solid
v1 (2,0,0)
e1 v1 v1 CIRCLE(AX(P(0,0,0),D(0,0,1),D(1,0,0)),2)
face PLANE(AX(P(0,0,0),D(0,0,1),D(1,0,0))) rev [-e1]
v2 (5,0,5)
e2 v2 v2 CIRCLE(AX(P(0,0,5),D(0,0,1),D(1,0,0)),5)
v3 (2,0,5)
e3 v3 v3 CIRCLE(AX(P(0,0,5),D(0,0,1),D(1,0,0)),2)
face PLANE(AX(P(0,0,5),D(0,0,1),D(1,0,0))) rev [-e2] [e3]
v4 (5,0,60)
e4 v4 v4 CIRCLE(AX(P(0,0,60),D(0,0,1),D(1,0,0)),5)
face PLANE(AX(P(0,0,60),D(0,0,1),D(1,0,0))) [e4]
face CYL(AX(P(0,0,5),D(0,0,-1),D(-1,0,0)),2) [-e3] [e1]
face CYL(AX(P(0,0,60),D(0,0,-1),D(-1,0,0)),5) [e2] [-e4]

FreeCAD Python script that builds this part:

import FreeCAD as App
import Part
import Sketcher

V = App.Vector

doc = App.newDocument("Part")
body = doc.addObject("PartDesign::Body", "Body")

# Sketch on XY plane
sketch1 = body.newObject("Sketcher::SketchObject", "Sketch")
sketch1.AttachmentSupport = (doc.getObject("XY_Plane"), [""])
sketch1.MapMode = "FlatFace"
sketch1.addGeometry(Part.Circle(V(0, 0, 0), V(0, 0, 1), 2), False)
sketch1.addConstraint(Sketcher.Constraint("Coincident", 0, 3, -1, 1))
sketch1.addConstraint(Sketcher.Constraint("Diameter", 0, 4.0))
pad1 = body.newObject("PartDesign::Pad", "Pad")
pad1.Profile = sketch1
pad1.Length = 5

# Sketch on XY plane
sketch2 = body.newObject("Sketcher::SketchObject", "Sketch001")
sketch2.AttachmentSupport = (doc.getObject("XY_Plane"), [""])
sketch2.MapMode = "FlatFace"
sketch2.AttachmentOffset = App.Placement(V(0, 0, 5), App.Rotation())
sketch2.addGeometry(Part.Circle(V(0, 0, 0), V(0, 0, 1), 5), False)
sketch2.addConstraint(Sketcher.Constraint("Coincident", 0, 3, -1, 1))
sketch2.addConstraint(Sketcher.Constraint("Diameter", 0, 10.0))
pad2 = body.newObject("PartDesign::Pad", "Pad001")
pad2.Profile = sketch2
pad2.Length = 55

doc.recompute()
